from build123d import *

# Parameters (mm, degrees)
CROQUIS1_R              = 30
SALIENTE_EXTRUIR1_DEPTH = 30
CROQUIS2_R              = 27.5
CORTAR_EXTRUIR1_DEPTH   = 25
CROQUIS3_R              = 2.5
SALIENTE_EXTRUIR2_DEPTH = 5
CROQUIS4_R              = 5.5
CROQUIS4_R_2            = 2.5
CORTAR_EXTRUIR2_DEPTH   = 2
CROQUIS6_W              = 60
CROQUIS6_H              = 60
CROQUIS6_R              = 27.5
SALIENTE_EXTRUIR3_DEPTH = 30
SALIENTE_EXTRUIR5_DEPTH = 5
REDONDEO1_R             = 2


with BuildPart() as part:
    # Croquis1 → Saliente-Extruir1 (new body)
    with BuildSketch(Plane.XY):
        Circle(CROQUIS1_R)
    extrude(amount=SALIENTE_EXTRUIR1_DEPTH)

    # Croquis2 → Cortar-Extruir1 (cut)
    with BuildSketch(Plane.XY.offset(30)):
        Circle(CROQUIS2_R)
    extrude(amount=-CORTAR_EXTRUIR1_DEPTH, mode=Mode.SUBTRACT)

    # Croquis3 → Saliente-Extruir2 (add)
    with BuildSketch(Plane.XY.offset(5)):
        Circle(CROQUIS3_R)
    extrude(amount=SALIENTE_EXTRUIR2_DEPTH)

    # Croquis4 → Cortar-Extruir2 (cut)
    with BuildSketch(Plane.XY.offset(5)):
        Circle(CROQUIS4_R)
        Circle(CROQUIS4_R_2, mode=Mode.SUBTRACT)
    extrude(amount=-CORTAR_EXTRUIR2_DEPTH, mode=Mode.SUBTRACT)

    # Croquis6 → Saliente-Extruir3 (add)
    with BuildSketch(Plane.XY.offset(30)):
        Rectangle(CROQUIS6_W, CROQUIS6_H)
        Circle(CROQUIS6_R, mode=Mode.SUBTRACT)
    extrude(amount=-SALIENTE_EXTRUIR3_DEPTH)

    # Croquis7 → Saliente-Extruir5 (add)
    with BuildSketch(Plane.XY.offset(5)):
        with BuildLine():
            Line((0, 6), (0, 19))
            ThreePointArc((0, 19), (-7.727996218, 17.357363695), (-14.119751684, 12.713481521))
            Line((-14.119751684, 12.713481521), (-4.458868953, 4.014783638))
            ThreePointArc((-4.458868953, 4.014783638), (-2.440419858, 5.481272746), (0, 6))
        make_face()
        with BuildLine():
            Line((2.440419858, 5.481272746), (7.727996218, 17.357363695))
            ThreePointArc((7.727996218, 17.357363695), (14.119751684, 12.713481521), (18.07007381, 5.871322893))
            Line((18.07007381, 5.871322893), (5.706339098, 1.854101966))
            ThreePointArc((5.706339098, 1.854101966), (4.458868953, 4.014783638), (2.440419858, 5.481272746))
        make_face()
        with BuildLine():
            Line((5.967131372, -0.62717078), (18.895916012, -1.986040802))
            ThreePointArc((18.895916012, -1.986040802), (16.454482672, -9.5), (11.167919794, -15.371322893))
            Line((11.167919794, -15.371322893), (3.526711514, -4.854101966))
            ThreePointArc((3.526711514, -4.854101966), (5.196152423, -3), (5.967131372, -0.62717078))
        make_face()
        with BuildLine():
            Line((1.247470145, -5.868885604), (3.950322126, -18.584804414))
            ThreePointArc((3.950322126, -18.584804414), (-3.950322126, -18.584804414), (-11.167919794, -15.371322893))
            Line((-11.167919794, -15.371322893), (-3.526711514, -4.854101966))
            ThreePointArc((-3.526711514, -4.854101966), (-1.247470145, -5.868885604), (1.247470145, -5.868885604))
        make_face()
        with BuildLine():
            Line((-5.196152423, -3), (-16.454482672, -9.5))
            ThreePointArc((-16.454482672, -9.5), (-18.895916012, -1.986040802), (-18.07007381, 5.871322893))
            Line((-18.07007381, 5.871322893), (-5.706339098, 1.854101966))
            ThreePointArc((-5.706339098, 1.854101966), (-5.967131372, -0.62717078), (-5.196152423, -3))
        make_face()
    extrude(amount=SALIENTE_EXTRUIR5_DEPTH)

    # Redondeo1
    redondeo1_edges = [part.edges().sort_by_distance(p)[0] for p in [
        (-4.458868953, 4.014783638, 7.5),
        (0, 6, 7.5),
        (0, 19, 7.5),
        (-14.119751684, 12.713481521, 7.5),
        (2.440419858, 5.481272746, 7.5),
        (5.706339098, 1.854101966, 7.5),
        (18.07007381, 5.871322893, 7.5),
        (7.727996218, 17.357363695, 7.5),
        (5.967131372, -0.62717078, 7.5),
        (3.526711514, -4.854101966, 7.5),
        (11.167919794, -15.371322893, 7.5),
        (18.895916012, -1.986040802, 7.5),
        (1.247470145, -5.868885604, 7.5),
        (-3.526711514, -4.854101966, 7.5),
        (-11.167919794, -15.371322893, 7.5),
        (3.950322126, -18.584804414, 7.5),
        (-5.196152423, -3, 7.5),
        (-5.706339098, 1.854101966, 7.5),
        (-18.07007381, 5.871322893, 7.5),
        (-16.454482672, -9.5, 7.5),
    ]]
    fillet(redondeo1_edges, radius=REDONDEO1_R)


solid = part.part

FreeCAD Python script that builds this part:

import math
import FreeCAD as App
import Part
import Sketcher
from FreeCAD import Vector
Q = App.Units.Quantity


def edges_at(feature, points):
    """Names of the edges that pass closest to the given points."""
    edges = feature.Shape.Edges
    near = lambda p: min(range(len(edges)), key=lambda i: edges[i].distToShape(Part.Vertex(*p))[0])
    return sorted({f"Edge{near(p) + 1}" for p in points})


def add_polygon(sketch, points):
    """Adds a closed chain of lines whose ends are joined by coincident constraints."""
    first, n = sketch.GeometryCount, len(points)
    for a, b in zip(points, points[1:] + points[:1]):
        sketch.addGeometry(Part.LineSegment(App.Vector(*a, 0), App.Vector(*b, 0)), False)
    for i in range(n):
        sketch.addConstraint(Sketcher.Constraint("Coincident", first + i, 2, first + (i + 1) % n, 1))

doc = App.newDocument("Part")
body = doc.addObject("PartDesign::Body", "Body")

sketch1 = body.newObject("Sketcher::SketchObject", "Sketch")
sketch1.AttachmentSupport = (doc.getObject("XY_Plane"), [""])
sketch1.MapMode = "FlatFace"
sketch1.addGeometry(Part.Circle(Vector(0, 0, 0), Vector(0, 0, 1), 30), False)
sketch1.addConstraint(Sketcher.Constraint("Coincident", 0, 3, -1, 1))
sketch1.addConstraint(Sketcher.Constraint("Diameter", 0, 60.0))
pad1 = body.newObject("PartDesign::Pad", "Pad")
pad1.Profile = sketch1
pad1.Length = 30

sketch2 = body.newObject("Sketcher::SketchObject", "Sketch001")
sketch2.AttachmentSupport = (doc.getObject("XY_Plane"), [""])
sketch2.MapMode = "FlatFace"
sketch2.AttachmentOffset = App.Placement(Vector(0, 0, 30), App.Rotation())
sketch2.addGeometry(Part.Circle(Vector(0, 0, 0), Vector(0, 0, 1), 28), False)
sketch2.addConstraint(Sketcher.Constraint("Coincident", 0, 3, -1, 1))
sketch2.addConstraint(Sketcher.Constraint("Diameter", 0, 55.0))
pocket1 = body.newObject("PartDesign::Pocket", "Pocket")
pocket1.Profile = sketch2
pocket1.Length = 25

sketch3 = body.newObject("Sketcher::SketchObject", "Sketch002")
sketch3.AttachmentSupport = (doc.getObject("XY_Plane"), [""])
sketch3.MapMode = "FlatFace"
sketch3.AttachmentOffset = App.Placement(Vector(0, 0, 5), App.Rotation())
sketch3.addGeometry(Part.Circle(Vector(0, 0, 0), Vector(0, 0, 1), 2.5), False)
sketch3.addConstraint(Sketcher.Constraint("Coincident", 0, 3, -1, 1))
sketch3.addConstraint(Sketcher.Constraint("Diameter", 0, 5.0))
pad2 = body.newObject("PartDesign::Pad", "Pad001")
pad2.Profile = sketch3
pad2.Length = 5

sketch4 = body.newObject("Sketcher::SketchObject", "Sketch003")
sketch4.AttachmentSupport = (doc.getObject("XY_Plane"), [""])
sketch4.MapMode = "FlatFace"
sketch4.AttachmentOffset = App.Placement(Vector(0, 0, 5), App.Rotation())
sketch4.addGeometry(Part.Circle(Vector(0, 0, 0), Vector(0, 0, 1), 5.5), False)
sketch4.addGeometry(Part.Circle(Vector(0, 0, 0), Vector(0, 0, 1), 2.5), False)
sketch4.addConstraint(Sketcher.Constraint("Coincident", 0, 3, -1, 1))
sketch4.addConstraint(Sketcher.Constraint("Coincident", 1, 3, -1, 1))
sketch4.addConstraint(Sketcher.Constraint("Diameter", 0, 11.0))
sketch4.addConstraint(Sketcher.Constraint("Diameter", 1, 5.0))
pocket2 = body.newObject("PartDesign::Pocket", "Pocket001")
pocket2.Profile = sketch4
pocket2.Length = 2

sketch5 = body.newObject("Sketcher::SketchObject", "Sketch004")
sketch5.AttachmentSupport = (doc.getObject("XY_Plane"), [""])
sketch5.MapMode = "FlatFace"
sketch5.AttachmentOffset = App.Placement(Vector(0, 0, 30), App.Rotation())
add_polygon(sketch5, [(-30, 30), (-30, -30), (30, -30), (30, 30)])
sketch5.addGeometry(Part.Circle(Vector(0, 0, 0), Vector(0, 0, 1), 28), False)
sketch5.addConstraint(Sketcher.Constraint("Vertical", 0))
sketch5.addConstraint(Sketcher.Constraint("Horizontal", 1))
sketch5.addConstraint(Sketcher.Constraint("Vertical", 2))
sketch5.addConstraint(Sketcher.Constraint("Horizontal", 3))
sketch5.addConstraint(Sketcher.Constraint("Coincident", 4, 3, -1, 1))
sketch5.addConstraint(Sketcher.Constraint("Symmetric", 0, 2, 2, 2, -1, 1))
sketch5.addConstraint(Sketcher.Constraint("Equal", 3, 0))
sketch5.addConstraint(Sketcher.Constraint("Diameter", 4, 55.0))
sketch5.addConstraint(Sketcher.Constraint("DistanceX", 1, 1, 1, 2, 60.0))
pad3 = body.newObject("PartDesign::Pad", "Pad002")
pad3.Profile = sketch5
pad3.Length = 30
pad3.Reversed = True

sketch6 = body.newObject("Sketcher::SketchObject", "Sketch005")
sketch6.AttachmentSupport = (doc.getObject("XY_Plane"), [""])
sketch6.MapMode = "FlatFace"
sketch6.AttachmentOffset = App.Placement(Vector(0, 0, 5), App.Rotation())
sketch6.addGeometry(Part.LineSegment(Vector(0, 6, 0), Vector(0, 19, 0)), False)
sketch6.addGeometry(Part.ArcOfCircle(Part.Circle(Vector(0, 0, 0), Vector(0, 0, 1), 19), math.radians(90), math.radians(138)), False)
sketch6.addGeometry(Part.LineSegment(Vector(-14.1, 12.7, 0), Vector(-4.5, 4, 0)), False)
sketch6.addGeometry(Part.ArcOfCircle(Part.Circle(Vector(0, 0, 0), Vector(0, 0, 1), 6), math.radians(90), math.radians(138)), False)
sketch6.addGeometry(Part.LineSegment(Vector(7.7, 17.4, 0), Vector(2.4, 5.5, 0)), False)
sketch6.addGeometry(Part.ArcOfCircle(Part.Circle(Vector(0, 0, 0), Vector(0, 0, 1), 6), math.radians(18), math.radians(66)), False)
sketch6.addGeometry(Part.LineSegment(Vector(5.7, 1.9, 0), Vector(18.1, 5.9, 0)), False)
sketch6.addGeometry(Part.ArcOfCircle(Part.Circle(Vector(0, 0, 0), Vector(0, 0, 1), 19), math.radians(18), math.radians(66)), False)
sketch6.addGeometry(Part.LineSegment(Vector(18.9, -2, 0), Vector(6, -0.6, 0)), False)
sketch6.addGeometry(Part.ArcOfCircle(Part.Circle(Vector(0, 0, 0), Vector(0, 0, 1), 6), math.radians(-54), math.radians(-6)), False)
sketch6.addGeometry(Part.LineSegment(Vector(3.5, -4.9, 0), Vector(11.2, -15.4, 0)), False)
sketch6.addGeometry(Part.ArcOfCircle(Part.Circle(Vector(0, 0, 0), Vector(0, 0, 1), 19), math.radians(-54), math.radians(-6)), False)
sketch6.addGeometry(Part.LineSegment(Vector(4, -18.6, 0), Vector(1.2, -5.9, 0)), False)
sketch6.addGeometry(Part.ArcOfCircle(Part.Circle(Vector(0, 0, 0), Vector(0, 0, 1), 6), math.radians(-126), math.radians(-78)), False)
sketch6.addGeometry(Part.LineSegment(Vector(-3.5, -4.9, 0), Vector(-11.2, -15.4, 0)), False)
sketch6.addGeometry(Part.ArcOfCircle(Part.Circle(Vector(0, 0, 0), Vector(0, 0, 1), 19), math.radians(-126), math.radians(-78)), False)
sketch6.addGeometry(Part.LineSegment(Vector(-16.5, -9.5, 0), Vector(-5.2, -3, 0)), False)
sketch6.addGeometry(Part.ArcOfCircle(Part.Circle(Vector(0, 0, 0), Vector(0, 0, 1), 6), math.radians(162), math.radians(210)), False)
sketch6.addGeometry(Part.LineSegment(Vector(-5.7, 1.9, 0), Vector(-18.1, 5.9, 0)), False)
sketch6.addGeometry(Part.ArcOfCircle(Part.Circle(Vector(0, 0, 0), Vector(0, 0, 1), 19), math.radians(162), math.radians(210)), False)
sketch6.addConstraint(Sketcher.Constraint("Coincident", 0, 2, 1, 1))
sketch6.addConstraint(Sketcher.Constraint("Coincident", 1, 2, 2, 1))
sketch6.addConstraint(Sketcher.Constraint("Coincident", 2, 2, 3, 2))
sketch6.addConstraint(Sketcher.Constraint("Coincident", 3, 1, 0, 1))
sketch6.addConstraint(Sketcher.Constraint("Coincident", 4, 2, 5, 2))
sketch6.addConstraint(Sketcher.Constraint("Coincident", 5, 1, 6, 1))
sketch6.addConstraint(Sketcher.Constraint("Coincident", 6, 2, 7, 1))
sketch6.addConstraint(Sketcher.Constraint("Coincident", 7, 2, 4, 1))
sketch6.addConstraint(Sketcher.Constraint("Coincident", 8, 2, 9, 2))
sketch6.addConstraint(Sketcher.Constraint("Coincident", 9, 1, 10, 1))
sketch6.addConstraint(Sketcher.Constraint("Coincident", 10, 2, 11, 1))
sketch6.addConstraint(Sketcher.Constraint("Coincident", 11, 2, 8, 1))
sketch6.addConstraint(Sketcher.Constraint("Coincident", 12, 2, 13, 2))
sketch6.addConstraint(Sketcher.Constraint("Coincident", 13, 1, 14, 1))
sketch6.addConstraint(Sketcher.Constraint("Coincident", 14, 2, 15, 1))
sketch6.addConstraint(Sketcher.Constraint("Coincident", 15, 2, 12, 1))
sketch6.addConstraint(Sketcher.Constraint("Coincident", 16, 2, 17, 2))
sketch6.addConstraint(Sketcher.Constraint("Coincident", 17, 1, 18, 1))
sketch6.addConstraint(Sketcher.Constraint("Coincident", 18, 2, 19, 1))
sketch6.addConstraint(Sketcher.Constraint("Coincident", 19, 2, 16, 1))
sketch6.addConstraint(Sketcher.Constraint("Vertical", 0))
sketch6.addConstraint(Sketcher.Constraint("Coincident", 1, 3, -1, 1))
sketch6.addConstraint(Sketcher.Constraint("Coincident", 3, 3, -1, 1))
sketch6.addConstraint(Sketcher.Constraint("Coincident", 5, 3, -1, 1))
sketch6.addConstraint(Sketcher.Constraint("Coincident", 7, 3, -1, 1))
sketch6.addConstraint(Sketcher.Constraint("Coincident", 9, 3, -1, 1))
sketch6.addConstraint(Sketcher.Constraint("Coincident", 11, 3, -1, 1))
sketch6.addConstraint(Sketcher.Constraint("Coincident", 13, 3, -1, 1))
sketch6.addConstraint(Sketcher.Constraint("Coincident", 15, 3, -1, 1))
sketch6.addConstraint(Sketcher.Constraint("Coincident", 17, 3, -1, 1))
sketch6.addConstraint(Sketcher.Constraint("Coincident", 19, 3, -1, 1))
sketch6.addConstraint(Sketcher.Constraint("Equal", 3, 5))
sketch6.addConstraint(Sketcher.Constraint("Equal", 1, 7))
sketch6.addConstraint(Sketcher.Constraint("Equal", 5, 9))
sketch6.addConstraint(Sketcher.Constraint("Equal", 7, 11))
sketch6.addConstraint(Sketcher.Constraint("Equal", 9, 13))
sketch6.addConstraint(Sketcher.Constraint("Equal", 11, 15))
sketch6.addConstraint(Sketcher.Constraint("Equal", 13, 17))
sketch6.addConstraint(Sketcher.Constraint("Equal", 15, 19))
sketch6.addConstraint(Sketcher.Constraint("PointOnObject", 0, 2, -2))
sketch6.addConstraint(Sketcher.Constraint("Horizontal", 9, 1, 13, 1))
sketch6.addConstraint(Sketcher.Constraint("Horizontal", 10, 2, 14, 2))
sketch6.addConstraint(Sketcher.Constraint("Horizontal", 5, 1, 17, 1))
sketch6.addConstraint(Sketcher.Constraint("Horizontal", 6, 2, 18, 2))
sketch6.addConstraint(Sketcher.Constraint("Radius", 1, 19.0))
sketch6.addConstraint(Sketcher.Constraint("Radius", 3, 6.0))
sketch6.addConstraint(Sketcher.Constraint("Angle", 2, Q("-42 deg")))
sketch6.addConstraint(Sketcher.Constraint("Angle", 4, Q("-114 deg")))
sketch6.addConstraint(Sketcher.Constraint("Angle", 6, Q("18 deg")))
sketch6.addConstraint(Sketcher.Constraint("Angle", 8, Q("174 deg")))
sketch6.addConstraint(Sketcher.Constraint("Angle", 10, Q("-54 deg")))
sketch6.addConstraint(Sketcher.Constraint("Angle", 12, Q("102 deg")))
sketch6.addConstraint(Sketcher.Constraint("Angle", 16, Q("30 deg")))
sketch6.addConstraint(Sketcher.Constraint("DistanceY", 16, 2, -1, 1, 3.0))
sketch6.addConstraint(Sketcher.Constraint("DistanceY", -1, 1, 5, 1, 1.854102))
sketch6.addConstraint(Sketcher.Constraint("DistanceY", 9, 1, -1, 1, 4.854102))
sketch6.addConstraint(Sketcher.Constraint("DistanceX", 1, 2, -1, 1, 14.119752))
sketch6.addConstraint(Sketcher.Constraint("DistanceX", -1, 1, 4, 2, 2.44042))
sketch6.addConstraint(Sketcher.Constraint("DistanceX", -1, 1, 8, 2, 5.967131))
sketch6.addConstraint(Sketcher.Constraint("DistanceX", -1, 1, 12, 2, 1.24747))
pad4 = body.newObject("PartDesign::Pad", "Pad003")
pad4.Profile = sketch6
pad4.Length = 5
doc.recompute()

fillet = body.newObject("PartDesign::Fillet", "Fillet")
fillet.Base = (pad4, edges_at(pad4, [
    (-4.459, 4.015, 7.5),
    (0, 6, 7.5),
    (0, 19, 7.5),
    (-14.12, 12.713, 7.5),
    (2.44, 5.481, 7.5),
    (5.706, 1.854, 7.5),
    (18.07, 5.871, 7.5),
    (7.728, 17.357, 7.5),
    (5.967, -0.627, 7.5),
    (3.527, -4.854, 7.5),
    (11.168, -15.371, 7.5),
    (18.896, -1.986, 7.5),
    (1.247, -5.869, 7.5),
    (-3.527, -4.854, 7.5),
    (-11.168, -15.371, 7.5),
    (3.95, -18.585, 7.5),
    (-5.196, -3, 7.5),
    (-5.706, 1.854, 7.5),
    (-18.07, 5.871, 7.5),
    (-16.454, -9.5, 7.5),
]))
fillet.Radius = 2

doc.recompute()
